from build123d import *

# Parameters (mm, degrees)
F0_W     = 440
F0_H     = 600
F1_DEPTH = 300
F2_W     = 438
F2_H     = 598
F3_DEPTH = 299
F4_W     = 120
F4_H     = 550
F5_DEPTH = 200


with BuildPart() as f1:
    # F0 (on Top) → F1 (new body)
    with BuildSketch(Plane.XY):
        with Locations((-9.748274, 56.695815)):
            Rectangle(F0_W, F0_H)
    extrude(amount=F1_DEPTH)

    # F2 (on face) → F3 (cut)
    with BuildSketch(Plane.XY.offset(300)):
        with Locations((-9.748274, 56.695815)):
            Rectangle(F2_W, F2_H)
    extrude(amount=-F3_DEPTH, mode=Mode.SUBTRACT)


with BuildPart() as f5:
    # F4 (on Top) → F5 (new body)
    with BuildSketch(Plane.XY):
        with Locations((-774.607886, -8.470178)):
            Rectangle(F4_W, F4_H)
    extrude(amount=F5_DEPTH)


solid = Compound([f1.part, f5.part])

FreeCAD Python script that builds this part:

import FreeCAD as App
import Part
import Sketcher

V = App.Vector


def add_polygon(sketch, points):
    """Adds a closed chain of lines whose ends are joined by coincident constraints."""
    first, n = sketch.GeometryCount, len(points)
    for a, b in zip(points, points[1:] + points[:1]):
        sketch.addGeometry(Part.LineSegment(App.Vector(*a, 0), App.Vector(*b, 0)), False)
    for i in range(n):
        sketch.addConstraint(Sketcher.Constraint("Coincident", first + i, 2, first + (i + 1) % n, 1))

doc = App.newDocument("Part")
body = doc.addObject("PartDesign::Body", "Body")

# Sketch on XY plane
sketch1 = body.newObject("Sketcher::SketchObject", "Sketch")
sketch1.AttachmentSupport = (doc.getObject("XY_Plane"), [""])
sketch1.MapMode = "FlatFace"
add_polygon(sketch1, [(-230, 357), (-230, -243), (210, -243), (210, 357)])  # lines 0-3
sketch1.addConstraint([
    Sketcher.Constraint("Vertical", 0),
    Sketcher.Constraint("Horizontal", 1),
    Sketcher.Constraint("Vertical", 2),
    Sketcher.Constraint("Horizontal", 3),
    Sketcher.Constraint("DistanceX", 1, 1, 1, 2, 440.0),
    Sketcher.Constraint("DistanceY", 0, 2, 0, 1, 600.0),
    Sketcher.Constraint("DistanceX", 0, 2, -1, 1, 229.748274),
    Sketcher.Constraint("DistanceY", 0, 2, -1, 1, 243.304185),
])
pad1 = body.newObject("PartDesign::Pad", "Pad")
pad1.Profile = sketch1
pad1.Length = 300

# Sketch on XY plane
sketch2 = body.newObject("Sketcher::SketchObject", "Sketch001")
sketch2.AttachmentSupport = (doc.getObject("XY_Plane"), [""])
sketch2.MapMode = "FlatFace"
sketch2.AttachmentOffset = App.Placement(V(0, 0, 300), App.Rotation())
add_polygon(sketch2, [(-229, 356), (-229, -242), (209, -242), (209, 356)])  # lines 0-3
sketch2.addConstraint([
    Sketcher.Constraint("Vertical", 0),
    Sketcher.Constraint("Horizontal", 1),
    Sketcher.Constraint("Vertical", 2),
    Sketcher.Constraint("Horizontal", 3),
    Sketcher.Constraint("DistanceX", 1, 1, 1, 2, 438.0),
    Sketcher.Constraint("DistanceY", 0, 2, 0, 1, 598.0),
    Sketcher.Constraint("DistanceX", 0, 2, -1, 1, 228.748274),
    Sketcher.Constraint("DistanceY", 0, 2, -1, 1, 242.304185),
])
pocket1 = body.newObject("PartDesign::Pocket", "Pocket")
pocket1.Profile = sketch2
pocket1.Length = 299
body2 = doc.addObject("PartDesign::Body", "Body001")

# Sketch on XY plane
sketch3 = body2.newObject("Sketcher::SketchObject", "Sketch002")
sketch3.AttachmentSupport = (doc.getObject("XY_Plane001"), [""])
sketch3.MapMode = "FlatFace"
add_polygon(sketch3, [(-835, 267), (-835, -283), (-715, -283), (-715, 267)])  # lines 0-3
sketch3.addConstraint([
    Sketcher.Constraint("Vertical", 0),
    Sketcher.Constraint("Horizontal", 1),
    Sketcher.Constraint("Vertical", 2),
    Sketcher.Constraint("Horizontal", 3),
    Sketcher.Constraint("DistanceX", 1, 1, 1, 2, 120.0),
    Sketcher.Constraint("DistanceY", 0, 2, 0, 1, 550.0),
    Sketcher.Constraint("DistanceX", 0, 2, -1, 1, 834.607886),
    Sketcher.Constraint("DistanceY", 0, 2, -1, 1, 283.470178),
])
pad2 = body2.newObject("PartDesign::Pad", "Pad001")
pad2.Profile = sketch3
pad2.Length = 200

doc.recompute()
